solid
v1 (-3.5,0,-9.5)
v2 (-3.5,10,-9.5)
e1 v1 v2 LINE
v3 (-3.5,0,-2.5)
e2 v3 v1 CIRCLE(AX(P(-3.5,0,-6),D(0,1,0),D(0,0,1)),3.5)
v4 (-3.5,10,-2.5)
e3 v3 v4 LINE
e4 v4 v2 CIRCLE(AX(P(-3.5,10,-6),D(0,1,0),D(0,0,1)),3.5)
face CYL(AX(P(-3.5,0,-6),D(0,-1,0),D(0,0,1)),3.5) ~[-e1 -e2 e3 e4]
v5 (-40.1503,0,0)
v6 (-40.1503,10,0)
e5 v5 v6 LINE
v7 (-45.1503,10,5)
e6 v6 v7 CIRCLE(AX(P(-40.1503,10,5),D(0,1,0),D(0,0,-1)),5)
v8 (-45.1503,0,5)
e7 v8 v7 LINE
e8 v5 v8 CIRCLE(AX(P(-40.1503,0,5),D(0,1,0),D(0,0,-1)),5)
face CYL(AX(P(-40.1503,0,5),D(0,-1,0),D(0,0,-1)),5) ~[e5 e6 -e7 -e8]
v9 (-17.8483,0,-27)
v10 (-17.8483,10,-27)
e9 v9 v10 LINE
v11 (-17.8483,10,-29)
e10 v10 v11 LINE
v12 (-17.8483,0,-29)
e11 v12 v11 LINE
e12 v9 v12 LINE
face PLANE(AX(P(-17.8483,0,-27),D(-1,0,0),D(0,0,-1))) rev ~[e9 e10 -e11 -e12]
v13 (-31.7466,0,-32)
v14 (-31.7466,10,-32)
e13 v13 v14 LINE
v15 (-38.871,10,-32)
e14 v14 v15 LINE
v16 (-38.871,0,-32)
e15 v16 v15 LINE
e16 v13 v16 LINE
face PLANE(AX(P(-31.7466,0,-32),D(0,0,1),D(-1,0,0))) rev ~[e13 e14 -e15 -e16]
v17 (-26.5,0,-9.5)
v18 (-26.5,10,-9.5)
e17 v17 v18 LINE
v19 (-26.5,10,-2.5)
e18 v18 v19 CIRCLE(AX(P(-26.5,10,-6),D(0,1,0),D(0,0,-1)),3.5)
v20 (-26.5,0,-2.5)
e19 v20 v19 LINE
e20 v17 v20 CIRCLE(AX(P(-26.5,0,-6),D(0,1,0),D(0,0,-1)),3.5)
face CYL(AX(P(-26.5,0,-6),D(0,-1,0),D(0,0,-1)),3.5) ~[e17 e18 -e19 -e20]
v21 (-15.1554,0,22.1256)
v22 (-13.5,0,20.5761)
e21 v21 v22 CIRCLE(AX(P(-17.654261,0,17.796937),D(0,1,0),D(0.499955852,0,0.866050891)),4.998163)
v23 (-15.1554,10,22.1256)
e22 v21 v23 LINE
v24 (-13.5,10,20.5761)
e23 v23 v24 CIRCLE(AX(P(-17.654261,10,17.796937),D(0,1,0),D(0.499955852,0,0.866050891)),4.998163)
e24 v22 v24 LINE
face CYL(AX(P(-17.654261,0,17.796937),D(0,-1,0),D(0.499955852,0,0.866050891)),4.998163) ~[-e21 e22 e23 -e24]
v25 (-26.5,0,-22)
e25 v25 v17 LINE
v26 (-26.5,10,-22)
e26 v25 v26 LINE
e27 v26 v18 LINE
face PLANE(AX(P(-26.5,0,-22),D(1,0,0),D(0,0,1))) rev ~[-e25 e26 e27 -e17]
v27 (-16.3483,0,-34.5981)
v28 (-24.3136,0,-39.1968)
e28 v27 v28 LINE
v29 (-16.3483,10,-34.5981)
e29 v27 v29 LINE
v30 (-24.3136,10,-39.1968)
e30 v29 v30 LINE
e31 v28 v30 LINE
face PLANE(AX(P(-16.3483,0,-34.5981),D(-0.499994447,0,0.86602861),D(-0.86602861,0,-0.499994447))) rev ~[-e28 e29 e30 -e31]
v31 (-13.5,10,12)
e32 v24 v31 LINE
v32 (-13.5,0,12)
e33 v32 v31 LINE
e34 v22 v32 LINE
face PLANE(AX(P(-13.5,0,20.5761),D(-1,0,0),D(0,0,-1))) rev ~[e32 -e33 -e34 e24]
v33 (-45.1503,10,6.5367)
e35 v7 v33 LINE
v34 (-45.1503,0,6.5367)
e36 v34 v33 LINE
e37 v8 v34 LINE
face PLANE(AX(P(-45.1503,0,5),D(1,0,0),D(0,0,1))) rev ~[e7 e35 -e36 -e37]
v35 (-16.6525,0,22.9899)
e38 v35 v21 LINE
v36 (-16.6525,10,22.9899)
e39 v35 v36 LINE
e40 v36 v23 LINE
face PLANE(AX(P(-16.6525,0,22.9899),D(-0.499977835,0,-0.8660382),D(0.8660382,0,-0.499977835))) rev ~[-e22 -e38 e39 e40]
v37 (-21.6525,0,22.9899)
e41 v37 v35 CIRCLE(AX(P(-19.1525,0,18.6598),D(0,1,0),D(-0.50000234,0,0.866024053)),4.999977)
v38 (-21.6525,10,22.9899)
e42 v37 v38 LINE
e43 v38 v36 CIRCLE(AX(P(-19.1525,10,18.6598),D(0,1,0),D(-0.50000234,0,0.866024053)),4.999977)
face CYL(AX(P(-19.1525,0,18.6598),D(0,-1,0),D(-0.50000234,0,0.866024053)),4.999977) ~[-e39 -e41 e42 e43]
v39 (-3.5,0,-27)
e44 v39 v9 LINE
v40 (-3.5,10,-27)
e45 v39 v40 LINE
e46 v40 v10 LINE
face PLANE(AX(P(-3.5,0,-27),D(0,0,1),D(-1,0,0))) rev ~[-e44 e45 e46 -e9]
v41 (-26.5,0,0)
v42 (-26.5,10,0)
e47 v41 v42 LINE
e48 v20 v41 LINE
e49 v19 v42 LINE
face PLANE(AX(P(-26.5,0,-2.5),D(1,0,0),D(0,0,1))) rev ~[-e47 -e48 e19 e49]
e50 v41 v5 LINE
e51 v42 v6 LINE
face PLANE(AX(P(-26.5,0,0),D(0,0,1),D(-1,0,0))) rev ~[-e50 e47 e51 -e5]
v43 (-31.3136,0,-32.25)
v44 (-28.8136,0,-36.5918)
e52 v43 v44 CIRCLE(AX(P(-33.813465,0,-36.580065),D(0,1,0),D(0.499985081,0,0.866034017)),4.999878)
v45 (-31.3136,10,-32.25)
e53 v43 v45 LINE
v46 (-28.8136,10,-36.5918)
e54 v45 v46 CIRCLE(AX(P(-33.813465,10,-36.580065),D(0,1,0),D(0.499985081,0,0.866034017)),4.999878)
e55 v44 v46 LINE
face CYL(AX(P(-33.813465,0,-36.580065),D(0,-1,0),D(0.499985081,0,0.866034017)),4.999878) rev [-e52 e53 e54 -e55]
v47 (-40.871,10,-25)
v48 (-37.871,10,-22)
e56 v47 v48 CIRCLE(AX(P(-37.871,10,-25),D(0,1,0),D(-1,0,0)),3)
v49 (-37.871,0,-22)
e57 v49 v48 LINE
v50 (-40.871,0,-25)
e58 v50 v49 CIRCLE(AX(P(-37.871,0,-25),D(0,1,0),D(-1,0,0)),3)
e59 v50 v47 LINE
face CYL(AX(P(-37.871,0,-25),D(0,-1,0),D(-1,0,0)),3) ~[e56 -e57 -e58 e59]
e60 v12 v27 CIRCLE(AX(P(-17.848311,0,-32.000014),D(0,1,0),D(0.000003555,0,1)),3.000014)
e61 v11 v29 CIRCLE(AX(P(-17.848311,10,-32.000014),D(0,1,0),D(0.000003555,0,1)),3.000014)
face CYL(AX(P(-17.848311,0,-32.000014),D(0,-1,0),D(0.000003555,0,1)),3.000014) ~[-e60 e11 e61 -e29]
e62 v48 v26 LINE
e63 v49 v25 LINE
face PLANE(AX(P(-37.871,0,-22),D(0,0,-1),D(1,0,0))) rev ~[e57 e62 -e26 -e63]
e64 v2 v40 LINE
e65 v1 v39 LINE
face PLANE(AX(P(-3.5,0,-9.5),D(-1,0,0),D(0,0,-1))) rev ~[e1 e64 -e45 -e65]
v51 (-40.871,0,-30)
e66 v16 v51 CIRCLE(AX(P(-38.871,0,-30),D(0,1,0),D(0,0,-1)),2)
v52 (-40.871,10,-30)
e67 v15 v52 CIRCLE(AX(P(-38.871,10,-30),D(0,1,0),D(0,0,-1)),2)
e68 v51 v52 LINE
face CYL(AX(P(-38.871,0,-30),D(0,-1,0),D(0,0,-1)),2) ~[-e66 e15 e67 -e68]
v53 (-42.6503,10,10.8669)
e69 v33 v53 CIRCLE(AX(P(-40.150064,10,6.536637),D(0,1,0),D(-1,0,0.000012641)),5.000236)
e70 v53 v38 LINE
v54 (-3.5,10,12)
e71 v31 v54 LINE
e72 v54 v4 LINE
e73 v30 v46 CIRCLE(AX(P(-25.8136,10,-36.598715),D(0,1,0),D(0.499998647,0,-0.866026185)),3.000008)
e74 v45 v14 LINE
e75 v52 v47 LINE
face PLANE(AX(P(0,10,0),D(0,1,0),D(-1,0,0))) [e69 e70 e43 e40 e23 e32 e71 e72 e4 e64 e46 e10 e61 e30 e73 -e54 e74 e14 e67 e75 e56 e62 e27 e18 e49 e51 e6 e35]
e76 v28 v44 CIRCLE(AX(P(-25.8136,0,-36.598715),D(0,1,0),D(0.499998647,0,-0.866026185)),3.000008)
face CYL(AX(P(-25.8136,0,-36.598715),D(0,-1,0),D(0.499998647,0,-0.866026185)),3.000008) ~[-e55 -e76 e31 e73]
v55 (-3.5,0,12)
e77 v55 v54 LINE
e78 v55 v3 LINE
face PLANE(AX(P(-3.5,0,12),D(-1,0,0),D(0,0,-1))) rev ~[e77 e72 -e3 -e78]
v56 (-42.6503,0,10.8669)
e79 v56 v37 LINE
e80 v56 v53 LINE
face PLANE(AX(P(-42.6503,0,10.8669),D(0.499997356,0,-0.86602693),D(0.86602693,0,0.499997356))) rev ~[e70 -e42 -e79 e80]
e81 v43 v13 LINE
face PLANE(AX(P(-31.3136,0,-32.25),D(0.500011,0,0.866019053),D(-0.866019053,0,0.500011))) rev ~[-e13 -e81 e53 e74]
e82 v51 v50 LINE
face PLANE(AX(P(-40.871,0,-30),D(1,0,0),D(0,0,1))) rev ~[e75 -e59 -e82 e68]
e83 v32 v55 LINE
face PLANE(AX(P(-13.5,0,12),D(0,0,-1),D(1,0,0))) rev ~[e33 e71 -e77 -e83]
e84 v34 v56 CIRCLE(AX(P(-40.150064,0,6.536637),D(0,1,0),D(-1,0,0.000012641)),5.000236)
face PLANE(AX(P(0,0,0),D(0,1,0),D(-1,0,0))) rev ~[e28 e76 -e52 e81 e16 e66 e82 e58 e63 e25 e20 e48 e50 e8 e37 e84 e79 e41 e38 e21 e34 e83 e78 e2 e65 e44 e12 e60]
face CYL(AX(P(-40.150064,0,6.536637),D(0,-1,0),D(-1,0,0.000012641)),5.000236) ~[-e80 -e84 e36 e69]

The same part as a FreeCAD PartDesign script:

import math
import FreeCAD as App
import Part
import Sketcher
Q = App.Units.Quantity

doc = App.newDocument("Part")
body = doc.addObject("PartDesign::Body", "Body")

# Sketch on XZ plane
sketch1 = body.newObject("Sketcher::SketchObject", "Sketch")
sketch1.AttachmentSupport = (doc.getObject("XZ_Plane"), [""])
sketch1.MapMode = "FlatFace"
sketch1.addGeometry(Part.ArcOfCircle(Part.Circle(App.Vector(-17.65, 17.8, 0), App.Vector(0, 0, 1), 5), math.radians(34), math.radians(60)), False)
sketch1.addGeometry(Part.LineSegment(App.Vector(-13.5, 20.58, 0), App.Vector(-13.5, 12, 0)), False)
sketch1.addGeometry(Part.LineSegment(App.Vector(-13.5, 12, 0), App.Vector(-3.5, 12, 0)), False)
sketch1.addGeometry(Part.LineSegment(App.Vector(-3.5, 12, 0), App.Vector(-3.5, -2.5, 0)), False)
sketch1.addGeometry(Part.ArcOfCircle(Part.Circle(App.Vector(-3.5, -6, 0), App.Vector(0, 0, 1), 3.5), math.radians(-90), math.radians(90)), False)
sketch1.addGeometry(Part.LineSegment(App.Vector(-3.5, -9.5, 0), App.Vector(-3.5, -27, 0)), False)
sketch1.addGeometry(Part.LineSegment(App.Vector(-3.5, -27, 0), App.Vector(-17.85, -27, 0)), False)
sketch1.addGeometry(Part.LineSegment(App.Vector(-17.85, -27, 0), App.Vector(-17.85, -29, 0)), False)
sketch1.addGeometry(Part.ArcOfCircle(Part.Circle(App.Vector(-17.85, -32, 0), App.Vector(0, 0, 1), 3), math.radians(-60), math.radians(90)), False)
sketch1.addGeometry(Part.LineSegment(App.Vector(-16.35, -34.6, 0), App.Vector(-24.31, -39.2, 0)), False)
sketch1.addGeometry(Part.ArcOfCircle(Part.Circle(App.Vector(-25.81, -36.6, 0), App.Vector(0, 0, 1), 3), math.radians(180), math.radians(300)), False)
sketch1.addGeometry(Part.ArcOfCircle(Part.Circle(App.Vector(-33.81, -36.58, 0), App.Vector(0, 0, 1), 5), math.radians(0), math.radians(60)), False)
sketch1.addGeometry(Part.LineSegment(App.Vector(-31.31, -32.25, 0), App.Vector(-31.75, -32, 0)), False)
sketch1.addGeometry(Part.LineSegment(App.Vector(-31.75, -32, 0), App.Vector(-38.87, -32, 0)), False)
sketch1.addGeometry(Part.ArcOfCircle(Part.Circle(App.Vector(-38.87, -30, 0), App.Vector(0, 0, 1), 2), math.radians(180), math.radians(270)), False)
sketch1.addGeometry(Part.LineSegment(App.Vector(-40.87, -30, 0), App.Vector(-40.87, -25, 0)), False)
sketch1.addGeometry(Part.ArcOfCircle(Part.Circle(App.Vector(-37.87, -25, 0), App.Vector(0, 0, 1), 3), math.radians(90), math.radians(180)), False)
sketch1.addGeometry(Part.LineSegment(App.Vector(-37.87, -22, 0), App.Vector(-26.5, -22, 0)), False)
sketch1.addGeometry(Part.LineSegment(App.Vector(-26.5, -22, 0), App.Vector(-26.5, -9.5, 0)), False)
sketch1.addGeometry(Part.ArcOfCircle(Part.Circle(App.Vector(-26.5, -6, 0), App.Vector(0, 0, 1), 3.5), math.radians(90), math.radians(270)), False)
sketch1.addGeometry(Part.LineSegment(App.Vector(-26.5, -2.5, 0), App.Vector(-26.5, 0, 0)), False)
sketch1.addGeometry(Part.LineSegment(App.Vector(-26.5, 0, 0), App.Vector(-40.15, 0, 0)), False)
sketch1.addGeometry(Part.ArcOfCircle(Part.Circle(App.Vector(-40.15, 5, 0), App.Vector(0, 0, 1), 5), math.radians(180), math.radians(270)), False)
sketch1.addGeometry(Part.LineSegment(App.Vector(-45.15, 5, 0), App.Vector(-45.15, 6.54, 0)), False)
sketch1.addGeometry(Part.ArcOfCircle(Part.Circle(App.Vector(-40.15, 6.54, 0), App.Vector(0, 0, 1), 5), math.radians(120), math.radians(180)), False)
sketch1.addGeometry(Part.LineSegment(App.Vector(-42.65, 10.87, 0), App.Vector(-21.65, 22.99, 0)), False)
sketch1.addGeometry(Part.ArcOfCircle(Part.Circle(App.Vector(-19.15, 18.66, 0), App.Vector(0, 0, 1), 5), math.radians(60), math.radians(120)), False)
sketch1.addGeometry(Part.LineSegment(App.Vector(-16.65, 22.99, 0), App.Vector(-15.16, 22.13, 0)), False)
sketch1.addConstraint(Sketcher.Constraint("Coincident", 0, 1, 1, 1))
sketch1.addConstraint(Sketcher.Constraint("Coincident", 1, 2, 2, 1))
sketch1.addConstraint(Sketcher.Constraint("Coincident", 2, 2, 3, 1))
sketch1.addConstraint(Sketcher.Constraint("Coincident", 3, 2, 4, 2))
sketch1.addConstraint(Sketcher.Constraint("Coincident", 4, 1, 5, 1))
sketch1.addConstraint(Sketcher.Constraint("Coincident", 5, 2, 6, 1))
sketch1.addConstraint(Sketcher.Constraint("Coincident", 6, 2, 7, 1))
sketch1.addConstraint(Sketcher.Constraint("Coincident", 7, 2, 8, 2))
sketch1.addConstraint(Sketcher.Constraint("Tangent", 8, 1, 9, 1))
sketch1.addConstraint(Sketcher.Constraint("Tangent", 9, 2, 10, 2))
sketch1.addConstraint(Sketcher.Constraint("Tangent", 10, 1, 11, 1))
sketch1.addConstraint(Sketcher.Constraint("Tangent", 11, 2, 12, 1))
sketch1.addConstraint(Sketcher.Constraint("Coincident", 12, 2, 13, 1))
sketch1.addConstraint(Sketcher.Constraint("Tangent", 13, 2, 14, 2))
sketch1.addConstraint(Sketcher.Constraint("Tangent", 14, 1, 15, 1))
sketch1.addConstraint(Sketcher.Constraint("Tangent", 15, 2, 16, 2))
sketch1.addConstraint(Sketcher.Constraint("Tangent", 16, 1, 17, 1))
sketch1.addConstraint(Sketcher.Constraint("Coincident", 17, 2, 18, 1))
sketch1.addConstraint(Sketcher.Constraint("Coincident", 18, 2, 19, 2))
sketch1.addConstraint(Sketcher.Constraint("Coincident", 19, 1, 20, 1))
sketch1.addConstraint(Sketcher.Constraint("Coincident", 20, 2, 21, 1))
sketch1.addConstraint(Sketcher.Constraint("Tangent", 21, 2, 22, 2))
sketch1.addConstraint(Sketcher.Constraint("Tangent", 22, 1, 23, 1))
sketch1.addConstraint(Sketcher.Constraint("Tangent", 23, 2, 24, 2))
sketch1.addConstraint(Sketcher.Constraint("Tangent", 24, 1, 25, 1))
sketch1.addConstraint(Sketcher.Constraint("Tangent", 25, 2, 26, 2))
sketch1.addConstraint(Sketcher.Constraint("Tangent", 26, 1, 27, 1))
sketch1.addConstraint(Sketcher.Constraint("Tangent", 27, 2, 0, 2))
sketch1.addConstraint(Sketcher.Constraint("Vertical", 1))
sketch1.addConstraint(Sketcher.Constraint("Horizontal", 2))
sketch1.addConstraint(Sketcher.Constraint("Vertical", 3))
sketch1.addConstraint(Sketcher.Constraint("Vertical", 5))
sketch1.addConstraint(Sketcher.Constraint("Horizontal", 6))
sketch1.addConstraint(Sketcher.Constraint("Vertical", 7))
sketch1.addConstraint(Sketcher.Constraint("Horizontal", 13))
sketch1.addConstraint(Sketcher.Constraint("Vertical", 15))
sketch1.addConstraint(Sketcher.Constraint("Horizontal", 17))
sketch1.addConstraint(Sketcher.Constraint("Vertical", 18))
sketch1.addConstraint(Sketcher.Constraint("Vertical", 20))
sketch1.addConstraint(Sketcher.Constraint("Horizontal", 21))
sketch1.addConstraint(Sketcher.Constraint("Vertical", 23))
sketch1.addConstraint(Sketcher.Constraint("Equal", 8, 10))
sketch1.addConstraint(Sketcher.Constraint("Equal", 10, 16))
sketch1.addConstraint(Sketcher.Constraint("Equal", 4, 19))
sketch1.addConstraint(Sketcher.Constraint("Equal", 11, 22))
sketch1.addConstraint(Sketcher.Constraint("Equal", 22, 24))
sketch1.addConstraint(Sketcher.Constraint("Equal", 24, 26))
sketch1.addConstraint(Sketcher.Constraint("PointOnObject", 20, 2, -1))
sketch1.addConstraint(Sketcher.Constraint("Parallel", 9, 25))
sketch1.addConstraint(Sketcher.Constraint("Parallel", 12, 27))
sketch1.addConstraint(Sketcher.Constraint("Horizontal", 4, 3, 19, 3))
sketch1.addConstraint(Sketcher.Constraint("Horizontal", 8, 3, 12, 2))
sketch1.addConstraint(Sketcher.Constraint("Horizontal", 25, 2, 26, 1))
sketch1.addConstraint(Sketcher.Constraint("Vertical", 4, 3, 2, 2))
sketch1.addConstraint(Sketcher.Constraint("Vertical", 3, 2, 4, 1))
sketch1.addConstraint(Sketcher.Constraint("Vertical", 8, 3, 6, 2))
sketch1.addConstraint(Sketcher.Constraint("Vertical", 19, 3, 17, 2))
sketch1.addConstraint(Sketcher.Constraint("Vertical", 18, 2, 19, 1))
sketch1.addConstraint(Sketcher.Constraint("Radius", 8, 3.0))
sketch1.addConstraint(Sketcher.Constraint("Radius", 11, 5.0))
sketch1.addConstraint(Sketcher.Constraint("Radius", 14, 2.0))
sketch1.addConstraint(Sketcher.Constraint("Radius", 4, 3.5))
sketch1.addConstraint(Sketcher.Constraint("DistanceX", 2, 1, 2, 2, 10.0))
sketch1.addConstraint(Sketcher.Constraint("DistanceY", 7, 2, 7, 1, 2.0))
sketch1.addConstraint(Sketcher.Constraint("DistanceY", 15, 1, 15, 2, 5.0))
sketch1.addConstraint(Sketcher.Constraint("Angle", 9, Q("-150.0004 deg")))
sketch1.addConstraint(Sketcher.Constraint("DistanceY", 3, 2, 3, 1, 14.5))
sketch1.addConstraint(Sketcher.Constraint("DistanceY", 5, 2, 5, 1, 17.5))
sketch1.addConstraint(Sketcher.Constraint("DistanceY", 20, 1, 20, 2, 2.5))
sketch1.addConstraint(Sketcher.Constraint("DistanceX", 19, 3, 4, 3, 23.0))
sketch1.addConstraint(Sketcher.Constraint("Distance", 12, 0.5))
sketch1.addConstraint(Sketcher.Constraint("DistanceX", 4, 3, -1, 1, 3.5))
sketch1.addConstraint(Sketcher.Constraint("Radius", 0, 4.9982))
sketch1.addConstraint(Sketcher.Constraint("DistanceX", 17, 1, 17, 2, 11.371))
sketch1.addConstraint(Sketcher.Constraint("DistanceY", 1, 2, 1, 1, 8.576))
sketch1.addConstraint(Sketcher.Constraint("DistanceY", -1, 1, 25, 2, 22.99))
sketch1.addConstraint(Sketcher.Constraint("DistanceX", 6, 2, 6, 1, 14.3483))
sketch1.addConstraint(Sketcher.Constraint("DistanceX", 13, 2, 13, 1, 7.1244))
sketch1.addConstraint(Sketcher.Constraint("DistanceX", 21, 2, 21, 1, 13.6503))
sketch1.addConstraint(Sketcher.Constraint("DistanceY", 23, 1, 23, 2, 1.5367))
pad1 = body.newObject("PartDesign::Pad", "Pad")
pad1.Profile = sketch1
pad1.Length = 10
pad1.Reversed = True

doc.recompute()
